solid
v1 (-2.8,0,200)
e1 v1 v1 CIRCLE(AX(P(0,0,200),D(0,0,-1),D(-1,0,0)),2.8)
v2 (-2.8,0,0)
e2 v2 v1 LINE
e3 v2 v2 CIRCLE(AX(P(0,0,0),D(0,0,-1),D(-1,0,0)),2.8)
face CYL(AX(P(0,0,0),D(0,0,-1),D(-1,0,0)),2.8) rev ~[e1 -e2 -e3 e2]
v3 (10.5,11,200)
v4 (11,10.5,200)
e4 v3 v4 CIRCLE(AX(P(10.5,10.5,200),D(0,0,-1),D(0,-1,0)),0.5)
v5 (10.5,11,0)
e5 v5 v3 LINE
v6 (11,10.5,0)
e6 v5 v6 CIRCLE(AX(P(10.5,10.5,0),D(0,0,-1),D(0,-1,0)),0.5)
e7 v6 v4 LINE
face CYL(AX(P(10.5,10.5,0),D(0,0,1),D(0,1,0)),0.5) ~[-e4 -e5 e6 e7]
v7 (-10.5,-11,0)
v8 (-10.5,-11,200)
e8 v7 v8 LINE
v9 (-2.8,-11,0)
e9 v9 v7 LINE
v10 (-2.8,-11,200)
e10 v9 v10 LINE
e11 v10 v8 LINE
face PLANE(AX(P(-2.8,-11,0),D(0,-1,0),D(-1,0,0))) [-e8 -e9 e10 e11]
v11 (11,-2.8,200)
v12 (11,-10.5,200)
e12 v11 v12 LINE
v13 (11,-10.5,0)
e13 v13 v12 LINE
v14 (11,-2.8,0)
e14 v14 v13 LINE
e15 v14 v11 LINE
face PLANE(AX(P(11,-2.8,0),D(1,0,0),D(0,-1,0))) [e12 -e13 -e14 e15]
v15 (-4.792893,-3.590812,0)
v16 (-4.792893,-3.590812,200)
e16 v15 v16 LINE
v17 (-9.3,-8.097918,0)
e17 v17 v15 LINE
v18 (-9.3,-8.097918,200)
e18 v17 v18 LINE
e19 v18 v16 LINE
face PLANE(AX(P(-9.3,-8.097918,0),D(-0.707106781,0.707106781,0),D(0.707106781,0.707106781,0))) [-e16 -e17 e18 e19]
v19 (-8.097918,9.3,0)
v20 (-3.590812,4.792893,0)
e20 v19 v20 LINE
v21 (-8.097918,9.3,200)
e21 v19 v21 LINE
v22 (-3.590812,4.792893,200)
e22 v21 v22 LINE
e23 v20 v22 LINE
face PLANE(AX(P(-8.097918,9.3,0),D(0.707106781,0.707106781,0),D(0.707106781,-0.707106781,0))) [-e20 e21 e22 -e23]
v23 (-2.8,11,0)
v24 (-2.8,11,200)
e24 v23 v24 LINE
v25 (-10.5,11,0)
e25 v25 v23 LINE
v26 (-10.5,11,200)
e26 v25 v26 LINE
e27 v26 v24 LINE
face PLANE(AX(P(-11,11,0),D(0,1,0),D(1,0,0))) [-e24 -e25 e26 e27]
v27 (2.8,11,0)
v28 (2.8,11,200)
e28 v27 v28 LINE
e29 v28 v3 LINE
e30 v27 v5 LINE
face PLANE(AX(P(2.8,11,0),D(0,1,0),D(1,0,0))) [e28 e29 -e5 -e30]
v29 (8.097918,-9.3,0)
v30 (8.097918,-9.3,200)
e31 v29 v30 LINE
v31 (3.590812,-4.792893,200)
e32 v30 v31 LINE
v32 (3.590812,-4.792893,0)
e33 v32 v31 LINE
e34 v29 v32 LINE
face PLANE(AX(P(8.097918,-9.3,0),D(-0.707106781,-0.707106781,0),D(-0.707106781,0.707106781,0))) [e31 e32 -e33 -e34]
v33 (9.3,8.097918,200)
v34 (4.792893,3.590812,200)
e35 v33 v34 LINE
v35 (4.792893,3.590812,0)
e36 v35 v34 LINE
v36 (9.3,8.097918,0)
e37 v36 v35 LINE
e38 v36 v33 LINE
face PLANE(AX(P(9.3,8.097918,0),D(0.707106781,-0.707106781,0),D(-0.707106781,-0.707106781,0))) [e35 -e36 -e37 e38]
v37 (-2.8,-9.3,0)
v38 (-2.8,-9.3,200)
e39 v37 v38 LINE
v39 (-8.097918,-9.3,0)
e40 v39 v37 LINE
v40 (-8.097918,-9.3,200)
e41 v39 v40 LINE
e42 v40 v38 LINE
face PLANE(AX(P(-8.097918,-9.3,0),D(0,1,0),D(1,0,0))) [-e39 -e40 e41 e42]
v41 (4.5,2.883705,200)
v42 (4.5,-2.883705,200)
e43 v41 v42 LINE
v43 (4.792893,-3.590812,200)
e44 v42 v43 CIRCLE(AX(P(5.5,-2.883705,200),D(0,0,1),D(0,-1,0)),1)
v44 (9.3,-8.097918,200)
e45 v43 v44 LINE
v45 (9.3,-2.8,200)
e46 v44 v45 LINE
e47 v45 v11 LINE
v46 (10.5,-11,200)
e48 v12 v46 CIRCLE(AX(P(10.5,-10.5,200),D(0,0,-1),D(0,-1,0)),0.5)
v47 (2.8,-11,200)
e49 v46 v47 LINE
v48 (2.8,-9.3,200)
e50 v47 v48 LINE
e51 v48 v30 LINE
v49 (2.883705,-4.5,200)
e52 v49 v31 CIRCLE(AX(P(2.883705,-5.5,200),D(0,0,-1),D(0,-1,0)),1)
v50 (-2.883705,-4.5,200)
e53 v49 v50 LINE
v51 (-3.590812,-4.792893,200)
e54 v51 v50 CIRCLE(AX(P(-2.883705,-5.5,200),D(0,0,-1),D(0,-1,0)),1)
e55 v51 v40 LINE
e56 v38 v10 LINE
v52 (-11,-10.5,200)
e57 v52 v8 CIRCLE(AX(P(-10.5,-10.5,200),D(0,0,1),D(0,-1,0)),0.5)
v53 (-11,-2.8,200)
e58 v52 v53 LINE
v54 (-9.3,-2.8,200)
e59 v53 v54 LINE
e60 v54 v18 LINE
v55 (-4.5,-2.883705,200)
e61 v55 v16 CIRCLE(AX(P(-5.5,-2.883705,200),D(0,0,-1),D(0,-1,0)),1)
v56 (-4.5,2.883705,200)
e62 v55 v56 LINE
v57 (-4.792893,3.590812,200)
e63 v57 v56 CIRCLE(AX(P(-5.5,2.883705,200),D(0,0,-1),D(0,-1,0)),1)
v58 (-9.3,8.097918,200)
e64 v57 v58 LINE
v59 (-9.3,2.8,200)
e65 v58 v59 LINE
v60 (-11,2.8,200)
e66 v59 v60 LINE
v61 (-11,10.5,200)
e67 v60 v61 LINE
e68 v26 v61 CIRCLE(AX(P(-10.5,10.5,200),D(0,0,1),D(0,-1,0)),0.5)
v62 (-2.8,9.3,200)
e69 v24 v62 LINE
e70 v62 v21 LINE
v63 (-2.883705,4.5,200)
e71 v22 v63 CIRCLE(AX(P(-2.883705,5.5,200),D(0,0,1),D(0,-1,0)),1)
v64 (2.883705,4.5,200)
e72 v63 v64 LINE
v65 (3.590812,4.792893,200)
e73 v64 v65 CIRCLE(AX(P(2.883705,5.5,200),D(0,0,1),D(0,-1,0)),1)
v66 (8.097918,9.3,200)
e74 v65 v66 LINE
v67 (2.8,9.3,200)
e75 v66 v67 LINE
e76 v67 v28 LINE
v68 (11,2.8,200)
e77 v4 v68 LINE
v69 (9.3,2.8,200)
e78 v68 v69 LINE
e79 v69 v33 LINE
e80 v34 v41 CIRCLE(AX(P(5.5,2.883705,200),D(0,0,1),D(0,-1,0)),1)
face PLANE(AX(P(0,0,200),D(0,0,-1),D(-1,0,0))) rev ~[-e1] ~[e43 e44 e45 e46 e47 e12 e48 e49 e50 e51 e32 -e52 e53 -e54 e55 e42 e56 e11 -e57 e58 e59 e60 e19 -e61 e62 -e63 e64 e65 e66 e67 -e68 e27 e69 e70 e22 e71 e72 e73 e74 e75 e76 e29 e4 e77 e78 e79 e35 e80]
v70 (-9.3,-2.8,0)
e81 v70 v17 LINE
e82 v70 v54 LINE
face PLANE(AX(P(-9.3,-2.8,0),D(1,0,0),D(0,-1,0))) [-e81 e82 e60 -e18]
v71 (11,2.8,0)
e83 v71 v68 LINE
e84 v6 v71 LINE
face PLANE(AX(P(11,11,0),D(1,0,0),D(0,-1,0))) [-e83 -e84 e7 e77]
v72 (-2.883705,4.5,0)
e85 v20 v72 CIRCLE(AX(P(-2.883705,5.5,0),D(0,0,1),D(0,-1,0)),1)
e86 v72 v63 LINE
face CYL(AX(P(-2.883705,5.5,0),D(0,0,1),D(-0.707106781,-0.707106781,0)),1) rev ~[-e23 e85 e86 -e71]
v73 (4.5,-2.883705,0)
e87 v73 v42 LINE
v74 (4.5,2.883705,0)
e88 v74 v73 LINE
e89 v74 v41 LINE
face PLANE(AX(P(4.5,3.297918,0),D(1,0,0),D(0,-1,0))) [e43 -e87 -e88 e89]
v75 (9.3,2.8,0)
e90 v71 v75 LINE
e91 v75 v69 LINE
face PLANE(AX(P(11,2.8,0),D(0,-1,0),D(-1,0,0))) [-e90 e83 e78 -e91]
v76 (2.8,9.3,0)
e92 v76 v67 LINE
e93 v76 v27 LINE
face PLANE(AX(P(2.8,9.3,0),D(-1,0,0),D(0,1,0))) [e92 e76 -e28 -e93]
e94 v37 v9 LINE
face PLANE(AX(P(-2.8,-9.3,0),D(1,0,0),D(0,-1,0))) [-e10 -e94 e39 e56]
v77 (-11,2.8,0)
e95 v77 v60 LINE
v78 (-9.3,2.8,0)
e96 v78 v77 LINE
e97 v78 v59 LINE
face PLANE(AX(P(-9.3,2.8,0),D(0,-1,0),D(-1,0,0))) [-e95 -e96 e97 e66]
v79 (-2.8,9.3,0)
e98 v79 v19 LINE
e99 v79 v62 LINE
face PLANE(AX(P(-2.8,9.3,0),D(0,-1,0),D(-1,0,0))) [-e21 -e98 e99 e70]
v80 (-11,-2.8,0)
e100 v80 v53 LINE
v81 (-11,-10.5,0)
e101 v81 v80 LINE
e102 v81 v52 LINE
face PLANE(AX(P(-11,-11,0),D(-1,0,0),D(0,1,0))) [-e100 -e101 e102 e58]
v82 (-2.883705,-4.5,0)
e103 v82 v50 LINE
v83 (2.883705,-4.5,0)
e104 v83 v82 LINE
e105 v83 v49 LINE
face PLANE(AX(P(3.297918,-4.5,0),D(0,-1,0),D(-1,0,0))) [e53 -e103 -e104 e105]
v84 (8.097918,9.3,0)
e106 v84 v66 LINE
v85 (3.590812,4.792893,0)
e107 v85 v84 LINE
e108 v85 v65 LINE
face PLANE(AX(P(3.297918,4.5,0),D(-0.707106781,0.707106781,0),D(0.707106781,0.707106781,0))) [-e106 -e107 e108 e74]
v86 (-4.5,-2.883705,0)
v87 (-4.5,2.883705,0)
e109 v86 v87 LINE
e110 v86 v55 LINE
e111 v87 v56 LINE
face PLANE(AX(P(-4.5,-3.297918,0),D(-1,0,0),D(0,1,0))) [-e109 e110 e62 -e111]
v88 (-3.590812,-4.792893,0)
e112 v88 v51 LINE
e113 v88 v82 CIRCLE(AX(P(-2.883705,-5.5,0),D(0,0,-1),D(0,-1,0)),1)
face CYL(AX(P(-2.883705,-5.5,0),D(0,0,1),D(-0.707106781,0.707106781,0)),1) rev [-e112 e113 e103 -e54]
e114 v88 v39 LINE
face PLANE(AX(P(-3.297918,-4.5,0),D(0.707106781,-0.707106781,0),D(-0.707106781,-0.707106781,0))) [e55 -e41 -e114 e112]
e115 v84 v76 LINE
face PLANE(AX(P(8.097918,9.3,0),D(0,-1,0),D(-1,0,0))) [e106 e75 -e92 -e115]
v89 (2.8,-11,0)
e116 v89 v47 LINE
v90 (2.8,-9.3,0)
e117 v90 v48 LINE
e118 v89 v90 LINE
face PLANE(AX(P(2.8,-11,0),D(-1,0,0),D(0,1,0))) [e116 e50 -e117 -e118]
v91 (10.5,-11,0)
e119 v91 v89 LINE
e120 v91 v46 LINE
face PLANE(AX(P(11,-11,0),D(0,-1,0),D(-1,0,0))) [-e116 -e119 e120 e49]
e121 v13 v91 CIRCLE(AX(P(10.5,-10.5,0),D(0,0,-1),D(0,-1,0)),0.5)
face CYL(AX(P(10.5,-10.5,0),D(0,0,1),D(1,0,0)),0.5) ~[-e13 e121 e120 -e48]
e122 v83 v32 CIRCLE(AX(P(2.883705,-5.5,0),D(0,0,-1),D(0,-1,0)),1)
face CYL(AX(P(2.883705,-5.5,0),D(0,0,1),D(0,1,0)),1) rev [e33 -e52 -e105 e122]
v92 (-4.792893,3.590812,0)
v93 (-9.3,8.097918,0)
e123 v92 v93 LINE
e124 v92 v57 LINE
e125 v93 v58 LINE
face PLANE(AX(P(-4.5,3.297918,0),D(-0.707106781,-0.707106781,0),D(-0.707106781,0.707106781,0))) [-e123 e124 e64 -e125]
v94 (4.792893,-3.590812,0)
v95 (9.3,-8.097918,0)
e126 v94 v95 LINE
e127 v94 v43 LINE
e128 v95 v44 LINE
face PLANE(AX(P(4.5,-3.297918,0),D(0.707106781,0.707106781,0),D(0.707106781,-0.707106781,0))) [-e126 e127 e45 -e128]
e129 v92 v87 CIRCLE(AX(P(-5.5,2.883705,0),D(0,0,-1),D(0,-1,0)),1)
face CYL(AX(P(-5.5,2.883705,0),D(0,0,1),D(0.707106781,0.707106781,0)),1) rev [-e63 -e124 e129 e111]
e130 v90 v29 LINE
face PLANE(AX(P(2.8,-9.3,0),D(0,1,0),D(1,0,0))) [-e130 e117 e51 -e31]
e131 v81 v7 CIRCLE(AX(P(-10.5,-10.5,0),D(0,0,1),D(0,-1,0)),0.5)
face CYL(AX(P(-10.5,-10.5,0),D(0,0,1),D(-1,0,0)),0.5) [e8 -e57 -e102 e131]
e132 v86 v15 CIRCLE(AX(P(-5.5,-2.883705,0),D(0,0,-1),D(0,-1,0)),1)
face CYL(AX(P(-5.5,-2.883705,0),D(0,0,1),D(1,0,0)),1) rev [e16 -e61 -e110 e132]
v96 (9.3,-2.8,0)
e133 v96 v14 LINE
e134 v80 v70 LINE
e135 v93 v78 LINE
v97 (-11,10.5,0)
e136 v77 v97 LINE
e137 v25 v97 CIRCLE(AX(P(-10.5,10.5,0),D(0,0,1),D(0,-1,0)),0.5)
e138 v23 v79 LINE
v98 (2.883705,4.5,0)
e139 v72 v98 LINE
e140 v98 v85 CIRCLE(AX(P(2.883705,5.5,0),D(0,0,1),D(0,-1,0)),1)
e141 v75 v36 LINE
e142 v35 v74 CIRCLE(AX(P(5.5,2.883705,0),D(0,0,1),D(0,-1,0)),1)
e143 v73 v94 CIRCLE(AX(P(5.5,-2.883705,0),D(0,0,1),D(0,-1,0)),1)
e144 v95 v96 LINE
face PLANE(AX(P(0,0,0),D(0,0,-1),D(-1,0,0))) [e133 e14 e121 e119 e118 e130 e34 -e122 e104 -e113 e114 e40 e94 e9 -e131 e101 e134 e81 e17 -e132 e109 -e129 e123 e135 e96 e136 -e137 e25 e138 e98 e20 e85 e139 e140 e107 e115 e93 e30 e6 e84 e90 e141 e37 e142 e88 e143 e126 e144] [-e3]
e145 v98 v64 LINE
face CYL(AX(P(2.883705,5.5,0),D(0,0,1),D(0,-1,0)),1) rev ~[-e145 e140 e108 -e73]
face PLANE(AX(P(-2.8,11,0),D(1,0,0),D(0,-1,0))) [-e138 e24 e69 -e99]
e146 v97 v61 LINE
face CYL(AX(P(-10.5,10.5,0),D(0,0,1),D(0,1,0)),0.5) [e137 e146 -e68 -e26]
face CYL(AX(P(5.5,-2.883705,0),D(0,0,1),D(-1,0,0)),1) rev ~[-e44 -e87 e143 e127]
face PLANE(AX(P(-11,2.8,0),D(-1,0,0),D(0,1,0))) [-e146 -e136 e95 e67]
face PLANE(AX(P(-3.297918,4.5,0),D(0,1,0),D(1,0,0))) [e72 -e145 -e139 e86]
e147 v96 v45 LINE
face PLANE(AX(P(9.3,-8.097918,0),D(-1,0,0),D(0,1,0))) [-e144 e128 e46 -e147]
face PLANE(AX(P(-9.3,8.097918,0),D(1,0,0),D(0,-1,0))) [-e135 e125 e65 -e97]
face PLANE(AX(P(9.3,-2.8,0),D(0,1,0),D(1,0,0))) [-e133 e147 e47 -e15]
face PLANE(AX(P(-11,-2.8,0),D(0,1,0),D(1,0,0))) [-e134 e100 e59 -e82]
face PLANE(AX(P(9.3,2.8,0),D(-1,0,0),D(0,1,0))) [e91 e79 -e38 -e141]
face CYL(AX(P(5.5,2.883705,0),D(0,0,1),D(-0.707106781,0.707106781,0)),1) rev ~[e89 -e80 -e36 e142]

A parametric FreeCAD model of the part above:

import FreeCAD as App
import Part
import Sketcher
Q = App.Units.Quantity


def edges_at(feature, points):
    """Names of the edges that pass closest to the given points."""
    edges = feature.Shape.Edges
    near = lambda p: min(range(len(edges)), key=lambda i: edges[i].distToShape(Part.Vertex(*p))[0])
    return sorted({f"Edge{near(p) + 1}" for p in points})


def add_polygon(sketch, points):
    """Adds a closed chain of lines whose ends are joined by coincident constraints."""
    first, n = sketch.GeometryCount, len(points)
    for a, b in zip(points, points[1:] + points[:1]):
        sketch.addGeometry(Part.LineSegment(App.Vector(*a, 0), App.Vector(*b, 0)), False)
    for i in range(n):
        sketch.addConstraint(Sketcher.Constraint("Coincident", first + i, 2, first + (i + 1) % n, 1))

doc = App.newDocument("Part")
params = doc.addObject("Spreadsheet::Sheet", "Params")
for row, (alias, value) in enumerate([
    ("sketch1_width", "8.2 mm"),
    ("sketch1_width2", "1.7 mm"),
    ("pad1_length", "200 mm"),
    ("sketch2_diameter", "5.6 mm"),
    ("fillet_radius", "0.5 mm"),
    ("fillet2_radius", "1 mm"),
], start=1):
    params.set(f"A{row}", alias)
    params.set(f"B{row}", "=" + value)
    params.setAlias(f"B{row}", alias)

body = doc.addObject("PartDesign::Body", "Body")

# Sketch on XY plane
sketch1 = body.newObject("Sketcher::SketchObject", "Sketch")
sketch1.AttachmentSupport = (doc.getObject("XY_Plane"), [""])
sketch1.MapMode = "FlatFace"
add_polygon(sketch1, [(-2.8, 9.3), (-2.8, 11), (-11, 11), (-11, 2.8), (-9.3, 2.8), (-9.3, 8.097918), (-4.5, 3.297918), (-4.5, -3.297918), (-9.3, -8.097918), (-9.3, -2.8), (-11, -2.8), (-11, -11), (-2.8, -11), (-2.8, -9.3), (-8.097918, -9.3), (-3.297918, -4.5), (3.297918, -4.5), (8.097918, -9.3), (2.8, -9.3), (2.8, -11), (11, -11), (11, -2.8), (9.3, -2.8), (9.3, -8.097918), (4.5, -3.297918), (4.5, 3.297918), (9.3, 8.097918), (9.3, 2.8), (11, 2.8), (11, 11), (2.8, 11), (2.8, 9.3), (8.097918, 9.3), (3.297918, 4.5), (-3.297918, 4.5), (-8.097918, 9.3)])  # lines 0-35
sketch1.addConstraint(Sketcher.Constraint("Vertical", 0))
sketch1.addConstraint(Sketcher.Constraint("Horizontal", 1))
sketch1.addConstraint(Sketcher.Constraint("Vertical", 2))
sketch1.addConstraint(Sketcher.Constraint("Horizontal", 3))
sketch1.addConstraint(Sketcher.Constraint("Vertical", 4))
sketch1.addConstraint(Sketcher.Constraint("Vertical", 6))
sketch1.addConstraint(Sketcher.Constraint("Vertical", 8))
sketch1.addConstraint(Sketcher.Constraint("Horizontal", 9))
sketch1.addConstraint(Sketcher.Constraint("Vertical", 10))
sketch1.addConstraint(Sketcher.Constraint("Horizontal", 11))
sketch1.addConstraint(Sketcher.Constraint("Vertical", 12))
sketch1.addConstraint(Sketcher.Constraint("Horizontal", 13))
sketch1.addConstraint(Sketcher.Constraint("Horizontal", 15))
sketch1.addConstraint(Sketcher.Constraint("Horizontal", 17))
sketch1.addConstraint(Sketcher.Constraint("Vertical", 18))
sketch1.addConstraint(Sketcher.Constraint("Horizontal", 19))
sketch1.addConstraint(Sketcher.Constraint("Vertical", 20))
sketch1.addConstraint(Sketcher.Constraint("Horizontal", 21))
sketch1.addConstraint(Sketcher.Constraint("Vertical", 22))
sketch1.addConstraint(Sketcher.Constraint("Vertical", 24))
sketch1.addConstraint(Sketcher.Constraint("Vertical", 26))
sketch1.addConstraint(Sketcher.Constraint("Horizontal", 27))
sketch1.addConstraint(Sketcher.Constraint("Vertical", 28))
sketch1.addConstraint(Sketcher.Constraint("Horizontal", 29))
sketch1.addConstraint(Sketcher.Constraint("Vertical", 30))
sketch1.addConstraint(Sketcher.Constraint("Horizontal", 31))
sketch1.addConstraint(Sketcher.Constraint("Horizontal", 33))
sketch1.addConstraint(Sketcher.Constraint("Horizontal", 35))
sketch1.addConstraint(Sketcher.Constraint("Symmetric", 0, 2, 18, 2, -1, 1))
sketch1.addConstraint(Sketcher.Constraint("Symmetric", 2, 2, 20, 2, -1, 1))
sketch1.addConstraint(Sketcher.Constraint("Symmetric", 4, 2, 22, 2, -1, 1))
sketch1.addConstraint(Sketcher.Constraint("Symmetric", 5, 2, 23, 2, -1, 1))
sketch1.addConstraint(Sketcher.Constraint("Symmetric", 7, 2, 25, 2, -1, 1))
sketch1.addConstraint(Sketcher.Constraint("Symmetric", 9, 2, 27, 2, -1, 1))
sketch1.addConstraint(Sketcher.Constraint("Symmetric", 11, 2, 29, 2, -1, 1))
sketch1.addConstraint(Sketcher.Constraint("Symmetric", 13, 2, 31, 2, -1, 1))
sketch1.addConstraint(Sketcher.Constraint("Symmetric", 14, 2, 32, 2, -1, 1))
sketch1.addConstraint(Sketcher.Constraint("Symmetric", 16, 2, 34, 2, -1, 1))
sketch1.addConstraint(Sketcher.Constraint("Symmetric", 13, 2, 16, 2, -2))
sketch1.addConstraint(Sketcher.Constraint("Symmetric", 11, 2, 18, 2, -2))
sketch1.addConstraint(Sketcher.Constraint("Symmetric", 9, 2, 20, 2, -2))
sketch1.addConstraint(Sketcher.Constraint("Symmetric", 7, 2, 22, 2, -2))
sketch1.addConstraint(Sketcher.Constraint("Perpendicular", 5, 7))
sketch1.addConstraint(Sketcher.Constraint("Parallel", 7, 14))
sketch1.addConstraint(Sketcher.Constraint("Perpendicular", 14, 16))
sketch1.addConstraint(Sketcher.Constraint("Perpendicular", 23, 25))
sketch1.addConstraint(Sketcher.Constraint("Perpendicular", 32, 34))
sketch1.addConstraint(Sketcher.Constraint("Horizontal", 6, 2, 23, 2))
sketch1.addConstraint(Sketcher.Constraint("Equal", 27, 0))
sketch1.addConstraint(Sketcher.Constraint("Equal", 29, 2))
sketch1.addConstraint(Sketcher.Constraint("Equal", 35, 4))
sketch1.addConstraint(Sketcher.Constraint("Equal", 33, 6))
sketch1.addConstraint(Sketcher.Constraint("Equal", 7, 14))
sketch1.addConstraint(Sketcher.Constraint("DistanceX", 1, 2, 1, 1, Q("8.2 mm")))
sketch1.addConstraint(Sketcher.Constraint("DistanceX", 3, 1, 3, 2, Q("1.7 mm")))
sketch1.addConstraint(Sketcher.Constraint("DistanceY", -1, 1, 0, 2, Q("11 mm")))
sketch1.addConstraint(Sketcher.Constraint("DistanceX", 5, 2, 24, 2, Q("9 mm")))
sketch1.addConstraint(Sketcher.Constraint("DistanceX", 13, 2, 13, 1, Q("5.297918 mm")))
sketch1.setExpression("Constraints[89]", "Params.sketch1_width")
sketch1.setExpression("Constraints[90]", "Params.sketch1_width2")
pad1 = body.newObject("PartDesign::Pad", "Pad")
pad1.Profile = sketch1
pad1.setExpression("Length", "Params.pad1_length")

# Sketch on XY plane
sketch2 = body.newObject("Sketcher::SketchObject", "Sketch001")
sketch2.AttachmentSupport = (doc.getObject("XY_Plane"), [""])
sketch2.MapMode = "FlatFace"
sketch2.addGeometry(Part.Circle(App.Vector(0, 0, 0), App.Vector(0, 0, 1), 2.8), False)
sketch2.addConstraint(Sketcher.Constraint("Coincident", 0, 3, -1, 1))
sketch2.addConstraint(Sketcher.Constraint("Diameter", 0, Q("5.6 mm")))
sketch2.setExpression("Constraints[1]", "Params.sketch2_diameter")
pocket1 = body.newObject("PartDesign::Pocket", "Pocket")
pocket1.Profile = sketch2
pocket1.Type = "ThroughAll"
pocket1.Reversed = True
doc.recompute()

fillet = body.newObject("PartDesign::Fillet", "Fillet")
fillet.Base = (pocket1, edges_at(pocket1, [
    (-11, 11, 100),
    (11, 11, 100),
    (11, -11, 100),
    (-11, -11, 100),
]))
fillet.setExpression("Radius", "Params.fillet_radius")
doc.recompute()

fillet2 = body.newObject("PartDesign::Fillet", "Fillet001")
fillet2.Base = (fillet, edges_at(fillet, [
    (-4.5, -3.298, 100),
    (-4.5, 3.298, 100),
    (-3.298, 4.5, 100),
    (3.298, 4.5, 100),
    (4.5, 3.298, 100),
    (4.5, -3.298, 100),
    (3.298, -4.5, 100),
    (-3.298, -4.5, 100),
]))
fillet2.setExpression("Radius", "Params.fillet2_radius")

doc.recompute()
